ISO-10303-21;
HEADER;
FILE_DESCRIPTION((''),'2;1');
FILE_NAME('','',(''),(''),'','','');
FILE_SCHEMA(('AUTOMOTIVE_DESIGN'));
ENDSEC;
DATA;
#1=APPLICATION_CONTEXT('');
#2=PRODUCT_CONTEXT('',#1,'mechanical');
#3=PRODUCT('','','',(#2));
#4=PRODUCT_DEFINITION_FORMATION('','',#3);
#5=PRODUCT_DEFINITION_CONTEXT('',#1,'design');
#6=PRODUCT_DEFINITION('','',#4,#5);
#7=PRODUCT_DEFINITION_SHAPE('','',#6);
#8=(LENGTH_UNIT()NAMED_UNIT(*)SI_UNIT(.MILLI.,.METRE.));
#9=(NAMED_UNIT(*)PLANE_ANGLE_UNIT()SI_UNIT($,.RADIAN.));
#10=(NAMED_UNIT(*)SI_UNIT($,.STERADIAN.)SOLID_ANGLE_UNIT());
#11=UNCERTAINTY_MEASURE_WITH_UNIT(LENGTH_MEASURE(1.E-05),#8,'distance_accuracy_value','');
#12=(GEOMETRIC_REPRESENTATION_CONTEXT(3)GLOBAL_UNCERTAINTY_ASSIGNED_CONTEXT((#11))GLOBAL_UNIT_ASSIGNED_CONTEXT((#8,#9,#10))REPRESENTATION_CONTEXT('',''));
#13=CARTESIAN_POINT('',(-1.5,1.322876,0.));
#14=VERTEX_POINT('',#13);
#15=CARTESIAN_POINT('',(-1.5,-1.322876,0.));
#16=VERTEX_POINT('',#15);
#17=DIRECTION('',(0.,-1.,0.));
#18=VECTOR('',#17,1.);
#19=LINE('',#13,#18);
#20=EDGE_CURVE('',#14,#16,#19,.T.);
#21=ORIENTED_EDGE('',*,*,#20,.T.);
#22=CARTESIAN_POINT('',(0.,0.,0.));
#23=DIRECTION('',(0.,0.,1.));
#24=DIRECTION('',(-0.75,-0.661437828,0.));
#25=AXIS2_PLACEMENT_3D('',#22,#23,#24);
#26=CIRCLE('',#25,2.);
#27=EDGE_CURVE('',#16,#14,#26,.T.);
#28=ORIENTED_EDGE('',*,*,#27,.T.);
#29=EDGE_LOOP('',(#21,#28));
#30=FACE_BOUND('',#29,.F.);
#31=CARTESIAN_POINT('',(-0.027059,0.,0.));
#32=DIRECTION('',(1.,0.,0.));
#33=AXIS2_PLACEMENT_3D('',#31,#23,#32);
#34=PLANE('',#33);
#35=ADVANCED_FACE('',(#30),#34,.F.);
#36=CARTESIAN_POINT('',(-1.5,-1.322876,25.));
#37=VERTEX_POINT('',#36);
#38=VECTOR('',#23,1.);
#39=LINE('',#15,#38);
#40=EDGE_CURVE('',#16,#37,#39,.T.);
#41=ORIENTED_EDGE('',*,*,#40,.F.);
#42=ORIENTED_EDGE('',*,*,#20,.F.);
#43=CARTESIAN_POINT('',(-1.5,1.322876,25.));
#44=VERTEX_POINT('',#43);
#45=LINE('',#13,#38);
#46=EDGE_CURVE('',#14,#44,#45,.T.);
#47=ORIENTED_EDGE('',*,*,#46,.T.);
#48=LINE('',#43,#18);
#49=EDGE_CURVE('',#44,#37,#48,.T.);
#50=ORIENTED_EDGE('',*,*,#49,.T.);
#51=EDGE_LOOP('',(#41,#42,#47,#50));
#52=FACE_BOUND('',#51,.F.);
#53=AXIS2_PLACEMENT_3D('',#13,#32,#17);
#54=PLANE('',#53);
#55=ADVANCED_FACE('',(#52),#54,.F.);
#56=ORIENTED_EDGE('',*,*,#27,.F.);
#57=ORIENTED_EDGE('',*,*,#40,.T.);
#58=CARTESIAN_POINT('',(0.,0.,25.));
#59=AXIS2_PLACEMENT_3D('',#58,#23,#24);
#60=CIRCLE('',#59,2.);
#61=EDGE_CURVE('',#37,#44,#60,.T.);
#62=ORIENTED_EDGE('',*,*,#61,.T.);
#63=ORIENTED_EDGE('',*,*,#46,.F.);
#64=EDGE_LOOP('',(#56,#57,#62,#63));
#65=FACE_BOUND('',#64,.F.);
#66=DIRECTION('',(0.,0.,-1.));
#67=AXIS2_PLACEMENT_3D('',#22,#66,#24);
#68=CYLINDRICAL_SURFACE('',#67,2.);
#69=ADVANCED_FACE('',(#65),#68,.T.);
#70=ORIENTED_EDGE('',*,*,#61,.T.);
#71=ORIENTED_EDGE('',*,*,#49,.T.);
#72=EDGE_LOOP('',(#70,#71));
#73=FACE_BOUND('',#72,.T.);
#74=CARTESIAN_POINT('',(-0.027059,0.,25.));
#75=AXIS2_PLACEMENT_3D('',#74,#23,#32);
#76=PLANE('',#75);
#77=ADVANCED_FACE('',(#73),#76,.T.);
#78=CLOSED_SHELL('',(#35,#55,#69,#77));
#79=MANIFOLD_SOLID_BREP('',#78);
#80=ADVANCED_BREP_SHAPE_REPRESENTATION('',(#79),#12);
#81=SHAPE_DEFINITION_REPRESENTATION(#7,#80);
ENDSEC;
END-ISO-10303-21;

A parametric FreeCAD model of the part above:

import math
import FreeCAD as App
import Part
import Sketcher

V = App.Vector
Q = App.Units.Quantity

doc = App.newDocument("Part")
body = doc.addObject("PartDesign::Body", "Body")

# Sketch on XY plane
sketch1 = doc.addObject("Sketcher::SketchObject", "Sketch")
body.addObject(sketch1)
sketch1.AttachmentSupport = (doc.XY_Plane, [""])
sketch1.MapMode = "FlatFace"
sketch1.addGeometry(Part.LineSegment(V(-1.5, 1.3, 0), V(-1.5, -1.3, 0)), False)
sketch1.addGeometry(Part.ArcOfCircle(Part.Circle(V(0, 0, 0), V(0, 0, 1), 2), math.radians(-139), math.radians(139)), False)
sketch1.addConstraint(Sketcher.Constraint("Coincident", 0, 1, 1, 2))
sketch1.addConstraint(Sketcher.Constraint("Coincident", 1, 1, 0, 2))
sketch1.addConstraint(Sketcher.Constraint("Vertical", 0))
sketch1.addConstraint(Sketcher.Constraint("Coincident", 1, 3, -1, 1))
sketch1.addConstraint(Sketcher.Constraint("Radius", 1, Q("2 mm")))
sketch1.addConstraint(Sketcher.Constraint("DistanceX", 0, 1, -1, 1, Q("1.5 mm")))
pad1 = doc.addObject("PartDesign::Pad", "Pad")
body.addObject(pad1)
pad1.Profile = sketch1
pad1.Length = 25

doc.recompute()
